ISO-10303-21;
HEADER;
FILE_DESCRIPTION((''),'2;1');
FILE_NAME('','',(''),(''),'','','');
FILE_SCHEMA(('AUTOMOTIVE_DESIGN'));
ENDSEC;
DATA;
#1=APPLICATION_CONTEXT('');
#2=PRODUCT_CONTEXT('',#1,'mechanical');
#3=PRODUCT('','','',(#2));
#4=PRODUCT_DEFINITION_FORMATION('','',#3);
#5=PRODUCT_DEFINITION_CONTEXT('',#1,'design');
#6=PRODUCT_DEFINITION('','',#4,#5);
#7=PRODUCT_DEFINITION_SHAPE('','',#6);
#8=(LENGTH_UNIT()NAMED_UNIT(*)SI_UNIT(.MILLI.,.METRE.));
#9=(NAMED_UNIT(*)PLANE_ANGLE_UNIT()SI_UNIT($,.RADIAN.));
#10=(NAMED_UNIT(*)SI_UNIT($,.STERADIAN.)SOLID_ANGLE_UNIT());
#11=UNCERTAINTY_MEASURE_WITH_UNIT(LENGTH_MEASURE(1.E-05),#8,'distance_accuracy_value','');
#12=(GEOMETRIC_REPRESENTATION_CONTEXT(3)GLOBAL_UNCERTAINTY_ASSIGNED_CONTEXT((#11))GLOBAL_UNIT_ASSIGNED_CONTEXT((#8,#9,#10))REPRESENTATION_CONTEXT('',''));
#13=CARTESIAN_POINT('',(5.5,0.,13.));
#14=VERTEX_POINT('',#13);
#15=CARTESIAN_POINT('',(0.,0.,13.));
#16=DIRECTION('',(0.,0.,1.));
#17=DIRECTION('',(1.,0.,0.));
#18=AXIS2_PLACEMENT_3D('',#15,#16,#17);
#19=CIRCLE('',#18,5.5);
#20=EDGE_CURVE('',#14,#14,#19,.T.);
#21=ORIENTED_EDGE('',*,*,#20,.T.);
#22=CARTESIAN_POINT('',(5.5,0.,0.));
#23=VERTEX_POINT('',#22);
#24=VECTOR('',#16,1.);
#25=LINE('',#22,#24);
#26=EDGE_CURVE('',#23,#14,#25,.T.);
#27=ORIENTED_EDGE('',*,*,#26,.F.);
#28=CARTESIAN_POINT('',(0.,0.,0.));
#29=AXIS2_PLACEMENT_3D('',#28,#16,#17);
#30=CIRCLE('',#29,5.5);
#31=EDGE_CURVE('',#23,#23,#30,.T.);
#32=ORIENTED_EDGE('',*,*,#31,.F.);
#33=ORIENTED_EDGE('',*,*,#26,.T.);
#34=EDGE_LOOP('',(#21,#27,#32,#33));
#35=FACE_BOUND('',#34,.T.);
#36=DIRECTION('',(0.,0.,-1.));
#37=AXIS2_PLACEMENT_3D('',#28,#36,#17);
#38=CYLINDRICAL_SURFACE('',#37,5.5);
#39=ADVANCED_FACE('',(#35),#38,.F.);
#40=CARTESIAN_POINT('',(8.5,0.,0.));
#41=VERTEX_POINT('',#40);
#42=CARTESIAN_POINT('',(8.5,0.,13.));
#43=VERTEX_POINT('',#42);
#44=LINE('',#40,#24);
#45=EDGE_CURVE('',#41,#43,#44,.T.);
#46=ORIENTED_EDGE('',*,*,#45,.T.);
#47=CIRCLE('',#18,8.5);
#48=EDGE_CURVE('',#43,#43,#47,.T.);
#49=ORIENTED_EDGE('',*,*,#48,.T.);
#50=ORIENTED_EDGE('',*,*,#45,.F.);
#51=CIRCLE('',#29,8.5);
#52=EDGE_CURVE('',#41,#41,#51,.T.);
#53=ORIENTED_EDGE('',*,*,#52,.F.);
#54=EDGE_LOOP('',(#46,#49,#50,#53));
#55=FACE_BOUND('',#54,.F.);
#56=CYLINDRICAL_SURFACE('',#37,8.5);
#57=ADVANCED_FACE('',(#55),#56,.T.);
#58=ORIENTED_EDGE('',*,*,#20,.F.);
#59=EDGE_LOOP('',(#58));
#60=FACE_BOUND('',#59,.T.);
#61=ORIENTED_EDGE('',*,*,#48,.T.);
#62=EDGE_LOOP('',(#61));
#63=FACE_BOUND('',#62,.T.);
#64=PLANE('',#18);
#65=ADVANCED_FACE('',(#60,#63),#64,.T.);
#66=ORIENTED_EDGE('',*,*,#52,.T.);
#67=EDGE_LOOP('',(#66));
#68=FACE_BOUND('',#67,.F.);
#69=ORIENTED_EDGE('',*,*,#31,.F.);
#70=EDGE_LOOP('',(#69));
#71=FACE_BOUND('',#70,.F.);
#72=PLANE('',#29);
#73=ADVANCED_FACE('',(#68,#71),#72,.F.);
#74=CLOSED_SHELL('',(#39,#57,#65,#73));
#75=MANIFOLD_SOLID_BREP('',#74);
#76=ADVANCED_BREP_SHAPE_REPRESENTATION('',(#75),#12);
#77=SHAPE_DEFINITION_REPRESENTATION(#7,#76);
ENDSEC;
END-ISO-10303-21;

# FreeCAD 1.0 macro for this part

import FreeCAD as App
import Part
import Sketcher
from FreeCAD import Vector
Q = App.Units.Quantity

doc = App.newDocument("Part")
body = doc.addObject("PartDesign::Body", "Body")

# Sketch on XY plane
sketch1 = doc.addObject("Sketcher::SketchObject", "Sketch")
body.addObject(sketch1)
sketch1.AttachmentSupport = (doc.XY_Plane, [""])
sketch1.MapMode = "FlatFace"
sketch1.addGeometry(Part.Circle(Vector(0, 0, 0), Vector(0, 0, 1), 8), False)
sketch1.addGeometry(Part.Circle(Vector(0, 0, 0), Vector(0, 0, 1), 6), False)
sketch1.addConstraint(Sketcher.Constraint("Coincident", 0, 3, -1, 1))
sketch1.addConstraint(Sketcher.Constraint("Coincident", 1, 3, -1, 1))
sketch1.addConstraint(Sketcher.Constraint("Diameter", 0, Q("17 mm")))
sketch1.addConstraint(Sketcher.Constraint("Diameter", 1, Q("11 mm")))
pad1 = doc.addObject("PartDesign::Pad", "Pad")
body.addObject(pad1)
pad1.Profile = sketch1
pad1.Length = 13

doc.recompute()
